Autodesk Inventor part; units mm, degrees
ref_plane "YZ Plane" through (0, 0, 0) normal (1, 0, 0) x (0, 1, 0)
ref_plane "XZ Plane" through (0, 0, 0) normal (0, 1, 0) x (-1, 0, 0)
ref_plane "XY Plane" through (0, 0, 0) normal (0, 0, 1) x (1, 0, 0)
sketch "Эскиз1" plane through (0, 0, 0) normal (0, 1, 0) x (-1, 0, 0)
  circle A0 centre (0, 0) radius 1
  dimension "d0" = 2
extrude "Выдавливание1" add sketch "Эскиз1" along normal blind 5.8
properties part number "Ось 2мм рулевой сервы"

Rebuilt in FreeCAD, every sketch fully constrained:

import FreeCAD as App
import Part
import Sketcher
Q = App.Units.Quantity

doc = App.newDocument("Part")
body = doc.addObject("PartDesign::Body", "Body")

# Sketch on XZ plane
sketch1 = body.newObject("Sketcher::SketchObject", "Sketch")
sketch1.AttachmentSupport = (doc.getObject("XZ_Plane"), [""])
sketch1.MapMode = "FlatFace"
sketch1.addGeometry(Part.Circle(App.Vector(0, 0, 0), App.Vector(0, 0, 1), 1), False)
sketch1.addConstraint([
    Sketcher.Constraint("Coincident", 0, 3, -1, 1),
    Sketcher.Constraint("Diameter", 0, Q("2 mm")),
])
pad1 = body.newObject("PartDesign::Pad", "Pad")
pad1.Profile = sketch1
pad1.Length = 5.8
pad1.Reversed = True

doc.recompute()
